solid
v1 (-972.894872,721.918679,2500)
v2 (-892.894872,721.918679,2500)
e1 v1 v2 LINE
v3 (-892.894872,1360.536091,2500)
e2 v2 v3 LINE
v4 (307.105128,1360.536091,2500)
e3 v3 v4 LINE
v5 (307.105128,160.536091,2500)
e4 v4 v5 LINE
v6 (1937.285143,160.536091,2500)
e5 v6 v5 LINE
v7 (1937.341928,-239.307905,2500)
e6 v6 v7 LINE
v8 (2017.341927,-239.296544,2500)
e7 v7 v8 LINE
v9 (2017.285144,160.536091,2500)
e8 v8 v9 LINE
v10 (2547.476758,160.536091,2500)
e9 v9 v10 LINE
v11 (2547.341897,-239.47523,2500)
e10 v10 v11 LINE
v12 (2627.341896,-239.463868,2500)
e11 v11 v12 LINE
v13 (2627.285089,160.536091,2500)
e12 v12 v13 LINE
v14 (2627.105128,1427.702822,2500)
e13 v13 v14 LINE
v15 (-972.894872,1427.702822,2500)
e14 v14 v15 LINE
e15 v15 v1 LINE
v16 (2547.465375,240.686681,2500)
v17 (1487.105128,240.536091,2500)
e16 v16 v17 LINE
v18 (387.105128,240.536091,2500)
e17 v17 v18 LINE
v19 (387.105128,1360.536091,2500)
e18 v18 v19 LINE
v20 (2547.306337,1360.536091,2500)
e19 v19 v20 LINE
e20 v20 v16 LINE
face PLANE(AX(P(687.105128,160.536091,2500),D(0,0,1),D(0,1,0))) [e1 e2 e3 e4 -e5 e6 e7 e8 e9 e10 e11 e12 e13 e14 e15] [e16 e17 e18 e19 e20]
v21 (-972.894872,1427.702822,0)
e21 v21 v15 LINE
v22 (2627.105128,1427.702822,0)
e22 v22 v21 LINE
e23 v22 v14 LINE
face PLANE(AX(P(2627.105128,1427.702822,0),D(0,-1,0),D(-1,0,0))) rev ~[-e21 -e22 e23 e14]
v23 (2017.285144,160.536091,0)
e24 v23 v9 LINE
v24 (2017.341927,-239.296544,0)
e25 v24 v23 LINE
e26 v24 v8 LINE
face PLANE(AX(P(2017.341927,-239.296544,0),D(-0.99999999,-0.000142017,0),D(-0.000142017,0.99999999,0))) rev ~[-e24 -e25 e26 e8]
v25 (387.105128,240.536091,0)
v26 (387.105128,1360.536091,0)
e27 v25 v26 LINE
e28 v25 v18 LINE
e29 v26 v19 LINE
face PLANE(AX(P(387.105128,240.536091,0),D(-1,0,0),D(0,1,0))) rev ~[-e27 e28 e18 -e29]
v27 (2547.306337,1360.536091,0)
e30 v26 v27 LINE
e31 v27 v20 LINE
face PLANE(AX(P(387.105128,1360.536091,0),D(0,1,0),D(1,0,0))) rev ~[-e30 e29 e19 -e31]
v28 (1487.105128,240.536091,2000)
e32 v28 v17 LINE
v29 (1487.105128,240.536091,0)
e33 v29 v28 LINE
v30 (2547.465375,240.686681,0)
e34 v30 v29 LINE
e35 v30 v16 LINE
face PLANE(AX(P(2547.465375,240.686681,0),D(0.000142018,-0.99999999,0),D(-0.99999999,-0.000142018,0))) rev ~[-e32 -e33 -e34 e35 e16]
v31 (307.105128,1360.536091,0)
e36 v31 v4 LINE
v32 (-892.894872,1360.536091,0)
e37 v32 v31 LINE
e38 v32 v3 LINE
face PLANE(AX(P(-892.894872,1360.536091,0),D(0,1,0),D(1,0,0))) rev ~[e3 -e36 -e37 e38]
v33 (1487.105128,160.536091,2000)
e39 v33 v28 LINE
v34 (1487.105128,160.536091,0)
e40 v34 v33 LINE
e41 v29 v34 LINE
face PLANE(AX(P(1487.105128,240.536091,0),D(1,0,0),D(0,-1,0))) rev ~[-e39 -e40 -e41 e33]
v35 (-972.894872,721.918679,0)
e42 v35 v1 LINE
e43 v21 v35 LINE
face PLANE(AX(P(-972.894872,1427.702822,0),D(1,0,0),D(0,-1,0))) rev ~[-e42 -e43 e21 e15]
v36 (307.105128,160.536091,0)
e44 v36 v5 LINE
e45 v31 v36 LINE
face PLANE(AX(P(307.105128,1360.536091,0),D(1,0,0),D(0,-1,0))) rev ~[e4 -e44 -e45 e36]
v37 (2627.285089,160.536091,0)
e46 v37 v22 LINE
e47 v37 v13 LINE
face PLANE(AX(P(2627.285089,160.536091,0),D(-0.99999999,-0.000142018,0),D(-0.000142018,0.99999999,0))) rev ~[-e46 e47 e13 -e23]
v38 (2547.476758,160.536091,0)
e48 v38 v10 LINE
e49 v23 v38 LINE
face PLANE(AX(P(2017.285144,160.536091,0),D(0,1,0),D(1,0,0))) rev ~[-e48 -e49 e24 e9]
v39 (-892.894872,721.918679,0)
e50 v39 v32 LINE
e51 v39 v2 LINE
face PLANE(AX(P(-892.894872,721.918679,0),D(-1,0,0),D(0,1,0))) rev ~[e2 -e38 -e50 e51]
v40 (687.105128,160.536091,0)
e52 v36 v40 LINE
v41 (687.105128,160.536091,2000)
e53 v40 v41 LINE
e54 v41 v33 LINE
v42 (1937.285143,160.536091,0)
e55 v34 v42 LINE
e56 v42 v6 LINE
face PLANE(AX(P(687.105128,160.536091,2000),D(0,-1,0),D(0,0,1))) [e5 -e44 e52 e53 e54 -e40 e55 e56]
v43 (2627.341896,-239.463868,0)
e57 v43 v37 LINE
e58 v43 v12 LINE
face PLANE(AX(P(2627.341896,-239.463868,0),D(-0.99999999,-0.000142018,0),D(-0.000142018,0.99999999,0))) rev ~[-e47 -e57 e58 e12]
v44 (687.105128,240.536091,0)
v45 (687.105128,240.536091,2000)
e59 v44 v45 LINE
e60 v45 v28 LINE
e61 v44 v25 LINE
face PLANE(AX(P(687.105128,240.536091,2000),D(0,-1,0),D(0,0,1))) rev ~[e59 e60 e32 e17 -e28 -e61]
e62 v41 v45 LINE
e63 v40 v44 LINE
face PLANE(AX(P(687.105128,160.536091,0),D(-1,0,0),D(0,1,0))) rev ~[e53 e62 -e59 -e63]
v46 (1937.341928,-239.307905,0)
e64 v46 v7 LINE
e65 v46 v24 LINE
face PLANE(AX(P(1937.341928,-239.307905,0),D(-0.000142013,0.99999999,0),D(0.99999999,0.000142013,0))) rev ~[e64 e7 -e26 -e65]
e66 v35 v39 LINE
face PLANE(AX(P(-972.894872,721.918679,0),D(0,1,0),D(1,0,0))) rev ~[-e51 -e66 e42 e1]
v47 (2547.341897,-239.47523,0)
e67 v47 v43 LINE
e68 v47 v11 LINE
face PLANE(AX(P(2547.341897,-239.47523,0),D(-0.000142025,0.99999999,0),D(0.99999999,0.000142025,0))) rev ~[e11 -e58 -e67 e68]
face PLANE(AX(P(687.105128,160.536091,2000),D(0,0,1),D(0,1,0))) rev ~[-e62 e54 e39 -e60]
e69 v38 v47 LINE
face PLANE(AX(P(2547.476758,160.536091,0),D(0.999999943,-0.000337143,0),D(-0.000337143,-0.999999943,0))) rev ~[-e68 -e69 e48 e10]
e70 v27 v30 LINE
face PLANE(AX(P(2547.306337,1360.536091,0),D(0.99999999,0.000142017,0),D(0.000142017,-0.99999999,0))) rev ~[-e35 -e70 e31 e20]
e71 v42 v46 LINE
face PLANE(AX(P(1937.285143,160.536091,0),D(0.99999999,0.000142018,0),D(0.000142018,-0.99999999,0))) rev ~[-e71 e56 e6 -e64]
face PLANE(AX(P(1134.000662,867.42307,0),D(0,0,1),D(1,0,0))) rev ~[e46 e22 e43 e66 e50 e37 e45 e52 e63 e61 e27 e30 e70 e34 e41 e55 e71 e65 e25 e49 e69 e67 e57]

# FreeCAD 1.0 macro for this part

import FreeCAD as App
import Part
import Sketcher
Q = App.Units.Quantity


def add_polygon(sketch, points):
    """Adds a closed chain of lines whose ends are joined by coincident constraints."""
    first, n = sketch.GeometryCount, len(points)
    for a, b in zip(points, points[1:] + points[:1]):
        sketch.addGeometry(Part.LineSegment(App.Vector(*a, 0), App.Vector(*b, 0)), False)
    for i in range(n):
        sketch.addConstraint(Sketcher.Constraint("Coincident", first + i, 2, first + (i + 1) % n, 1))

doc = App.newDocument("Part")
body = doc.addObject("PartDesign::Body", "Body")

# Sketch on XY plane
sketch1 = body.newObject("Sketcher::SketchObject", "Sketch")
sketch1.AttachmentSupport = (doc.getObject("XY_Plane"), [""])
sketch1.MapMode = "FlatFace"
add_polygon(sketch1, [(-973, 722), (-893, 722), (-893, 1361), (307, 1361), (307, 161), (687, 161), (687, 241), (387, 241), (387, 1361), (2547, 1361), (2547, 241), (1487, 241), (1487, 161), (1937, 161), (1937, -239), (2017, -239), (2017, 161), (2547, 161), (2547, -239), (2627, -239), (2627, 161), (2627, 1428), (-973, 1428)])  # lines 0-22
sketch1.addConstraint([
    Sketcher.Constraint("Horizontal", 0),
    Sketcher.Constraint("Vertical", 1),
    Sketcher.Constraint("Horizontal", 2),
    Sketcher.Constraint("Vertical", 3),
    Sketcher.Constraint("Horizontal", 4),
    Sketcher.Constraint("Vertical", 5),
    Sketcher.Constraint("Horizontal", 6),
    Sketcher.Constraint("Vertical", 7),
    Sketcher.Constraint("Horizontal", 8),
    Sketcher.Constraint("Vertical", 11),
    Sketcher.Constraint("Horizontal", 12),
    Sketcher.Constraint("Horizontal", 16),
    Sketcher.Constraint("Horizontal", 21),
    Sketcher.Constraint("Vertical", 22),
    Sketcher.Constraint("Perpendicular", 9, 10),
    Sketcher.Constraint("Perpendicular", 10, 13),
    Sketcher.Constraint("Perpendicular", 13, 14),
    Sketcher.Constraint("Perpendicular", 14, 15),
    Sketcher.Constraint("Perpendicular", 15, 18),
    Sketcher.Constraint("Perpendicular", 18, 19),
    Sketcher.Constraint("Parallel", 19, 20),
    Sketcher.Constraint("Horizontal", 2, 2, 7, 2),
    Sketcher.Constraint("Horizontal", 6, 2, 10, 2),
    Sketcher.Constraint("Horizontal", 4, 2, 11, 2),
    Sketcher.Constraint("Horizontal", 12, 2, 15, 2),
    Sketcher.Constraint("Horizontal", 16, 2, 19, 2),
    Sketcher.Constraint("Equal", 2, 3),
    Sketcher.Constraint("Equal", 0, 5),
    Sketcher.Constraint("Equal", 14, 18),
    Sketcher.Constraint("DistanceX", 0, 1, 0, 2, Q("80 mm")),
    Sketcher.Constraint("DistanceX", 2, 1, 2, 2, Q("1200 mm")),
    Sketcher.Constraint("DistanceX", 4, 1, 4, 2, Q("380 mm")),
    Sketcher.Constraint("DistanceX", 6, 2, 6, 1, Q("300 mm")),
    Sketcher.Constraint("DistanceX", 21, 2, 21, 1, Q("3600 mm")),
    Sketcher.Constraint("Distance", 14, Q("80 mm")),
    Sketcher.Constraint("DistanceX", 5, 2, 10, 2, Q("800 mm")),
    Sketcher.Constraint("Distance", 13, Q("399.844 mm")),
    Sketcher.Constraint("DistanceX", 8, 1, 8, 2, Q("2160.201209 mm")),
    Sketcher.Constraint("DistanceY", 1, 1, 1, 2, Q("638.617412 mm")),
    Sketcher.Constraint("DistanceX", 11, 2, 13, 2, Q("450.2368 mm")),
    Sketcher.Constraint("Distance", 9, Q("1119.849421 mm")),
    Sketcher.Constraint("DistanceX", 16, 1, 16, 2, Q("530.191614 mm")),
    Sketcher.Constraint("DistanceY", 22, 2, 22, 1, Q("705.784143 mm")),
    Sketcher.Constraint("DistanceX", 0, 2, -1, 1, Q("892.894872 mm")),
    Sketcher.Constraint("DistanceY", -1, 1, 0, 2, Q("721.918679 mm")),
    Sketcher.Constraint("DistanceY", 17, 2, -1, 1, Q("239.47523 mm")),
])
pad1 = body.newObject("PartDesign::Pad", "Pad")
pad1.Profile = sketch1
pad1.Length = 2500

# Sketch on YZ plane
sketch2 = body.newObject("Sketcher::SketchObject", "Sketch001")
sketch2.AttachmentSupport = (doc.getObject("YZ_Plane"), [""])
sketch2.MapMode = "FlatFace"
sketch2.AttachmentOffset = App.Placement(App.Vector(0, 0, 687.105128), App.Rotation())
add_polygon(sketch2, [(161, 2500), (161, 2000), (241, 2000), (241, 2500)])  # lines 0-3
sketch2.addConstraint([
    Sketcher.Constraint("Vertical", 0),
    Sketcher.Constraint("Horizontal", 1),
    Sketcher.Constraint("Vertical", 2),
    Sketcher.Constraint("Horizontal", 3),
    Sketcher.Constraint("DistanceX", 1, 1, 1, 2, Q("80 mm")),
    Sketcher.Constraint("DistanceY", 0, 2, 0, 1, Q("500 mm")),
    Sketcher.Constraint("DistanceY", -1, 1, 0, 2, Q("2000 mm")),
    Sketcher.Constraint("DistanceX", -1, 1, 0, 2, Q("160.536091 mm")),
])
pad2 = body.newObject("PartDesign::Pad", "Pad001")
pad2.Profile = sketch2
pad2.Length = 800

doc.recompute()
